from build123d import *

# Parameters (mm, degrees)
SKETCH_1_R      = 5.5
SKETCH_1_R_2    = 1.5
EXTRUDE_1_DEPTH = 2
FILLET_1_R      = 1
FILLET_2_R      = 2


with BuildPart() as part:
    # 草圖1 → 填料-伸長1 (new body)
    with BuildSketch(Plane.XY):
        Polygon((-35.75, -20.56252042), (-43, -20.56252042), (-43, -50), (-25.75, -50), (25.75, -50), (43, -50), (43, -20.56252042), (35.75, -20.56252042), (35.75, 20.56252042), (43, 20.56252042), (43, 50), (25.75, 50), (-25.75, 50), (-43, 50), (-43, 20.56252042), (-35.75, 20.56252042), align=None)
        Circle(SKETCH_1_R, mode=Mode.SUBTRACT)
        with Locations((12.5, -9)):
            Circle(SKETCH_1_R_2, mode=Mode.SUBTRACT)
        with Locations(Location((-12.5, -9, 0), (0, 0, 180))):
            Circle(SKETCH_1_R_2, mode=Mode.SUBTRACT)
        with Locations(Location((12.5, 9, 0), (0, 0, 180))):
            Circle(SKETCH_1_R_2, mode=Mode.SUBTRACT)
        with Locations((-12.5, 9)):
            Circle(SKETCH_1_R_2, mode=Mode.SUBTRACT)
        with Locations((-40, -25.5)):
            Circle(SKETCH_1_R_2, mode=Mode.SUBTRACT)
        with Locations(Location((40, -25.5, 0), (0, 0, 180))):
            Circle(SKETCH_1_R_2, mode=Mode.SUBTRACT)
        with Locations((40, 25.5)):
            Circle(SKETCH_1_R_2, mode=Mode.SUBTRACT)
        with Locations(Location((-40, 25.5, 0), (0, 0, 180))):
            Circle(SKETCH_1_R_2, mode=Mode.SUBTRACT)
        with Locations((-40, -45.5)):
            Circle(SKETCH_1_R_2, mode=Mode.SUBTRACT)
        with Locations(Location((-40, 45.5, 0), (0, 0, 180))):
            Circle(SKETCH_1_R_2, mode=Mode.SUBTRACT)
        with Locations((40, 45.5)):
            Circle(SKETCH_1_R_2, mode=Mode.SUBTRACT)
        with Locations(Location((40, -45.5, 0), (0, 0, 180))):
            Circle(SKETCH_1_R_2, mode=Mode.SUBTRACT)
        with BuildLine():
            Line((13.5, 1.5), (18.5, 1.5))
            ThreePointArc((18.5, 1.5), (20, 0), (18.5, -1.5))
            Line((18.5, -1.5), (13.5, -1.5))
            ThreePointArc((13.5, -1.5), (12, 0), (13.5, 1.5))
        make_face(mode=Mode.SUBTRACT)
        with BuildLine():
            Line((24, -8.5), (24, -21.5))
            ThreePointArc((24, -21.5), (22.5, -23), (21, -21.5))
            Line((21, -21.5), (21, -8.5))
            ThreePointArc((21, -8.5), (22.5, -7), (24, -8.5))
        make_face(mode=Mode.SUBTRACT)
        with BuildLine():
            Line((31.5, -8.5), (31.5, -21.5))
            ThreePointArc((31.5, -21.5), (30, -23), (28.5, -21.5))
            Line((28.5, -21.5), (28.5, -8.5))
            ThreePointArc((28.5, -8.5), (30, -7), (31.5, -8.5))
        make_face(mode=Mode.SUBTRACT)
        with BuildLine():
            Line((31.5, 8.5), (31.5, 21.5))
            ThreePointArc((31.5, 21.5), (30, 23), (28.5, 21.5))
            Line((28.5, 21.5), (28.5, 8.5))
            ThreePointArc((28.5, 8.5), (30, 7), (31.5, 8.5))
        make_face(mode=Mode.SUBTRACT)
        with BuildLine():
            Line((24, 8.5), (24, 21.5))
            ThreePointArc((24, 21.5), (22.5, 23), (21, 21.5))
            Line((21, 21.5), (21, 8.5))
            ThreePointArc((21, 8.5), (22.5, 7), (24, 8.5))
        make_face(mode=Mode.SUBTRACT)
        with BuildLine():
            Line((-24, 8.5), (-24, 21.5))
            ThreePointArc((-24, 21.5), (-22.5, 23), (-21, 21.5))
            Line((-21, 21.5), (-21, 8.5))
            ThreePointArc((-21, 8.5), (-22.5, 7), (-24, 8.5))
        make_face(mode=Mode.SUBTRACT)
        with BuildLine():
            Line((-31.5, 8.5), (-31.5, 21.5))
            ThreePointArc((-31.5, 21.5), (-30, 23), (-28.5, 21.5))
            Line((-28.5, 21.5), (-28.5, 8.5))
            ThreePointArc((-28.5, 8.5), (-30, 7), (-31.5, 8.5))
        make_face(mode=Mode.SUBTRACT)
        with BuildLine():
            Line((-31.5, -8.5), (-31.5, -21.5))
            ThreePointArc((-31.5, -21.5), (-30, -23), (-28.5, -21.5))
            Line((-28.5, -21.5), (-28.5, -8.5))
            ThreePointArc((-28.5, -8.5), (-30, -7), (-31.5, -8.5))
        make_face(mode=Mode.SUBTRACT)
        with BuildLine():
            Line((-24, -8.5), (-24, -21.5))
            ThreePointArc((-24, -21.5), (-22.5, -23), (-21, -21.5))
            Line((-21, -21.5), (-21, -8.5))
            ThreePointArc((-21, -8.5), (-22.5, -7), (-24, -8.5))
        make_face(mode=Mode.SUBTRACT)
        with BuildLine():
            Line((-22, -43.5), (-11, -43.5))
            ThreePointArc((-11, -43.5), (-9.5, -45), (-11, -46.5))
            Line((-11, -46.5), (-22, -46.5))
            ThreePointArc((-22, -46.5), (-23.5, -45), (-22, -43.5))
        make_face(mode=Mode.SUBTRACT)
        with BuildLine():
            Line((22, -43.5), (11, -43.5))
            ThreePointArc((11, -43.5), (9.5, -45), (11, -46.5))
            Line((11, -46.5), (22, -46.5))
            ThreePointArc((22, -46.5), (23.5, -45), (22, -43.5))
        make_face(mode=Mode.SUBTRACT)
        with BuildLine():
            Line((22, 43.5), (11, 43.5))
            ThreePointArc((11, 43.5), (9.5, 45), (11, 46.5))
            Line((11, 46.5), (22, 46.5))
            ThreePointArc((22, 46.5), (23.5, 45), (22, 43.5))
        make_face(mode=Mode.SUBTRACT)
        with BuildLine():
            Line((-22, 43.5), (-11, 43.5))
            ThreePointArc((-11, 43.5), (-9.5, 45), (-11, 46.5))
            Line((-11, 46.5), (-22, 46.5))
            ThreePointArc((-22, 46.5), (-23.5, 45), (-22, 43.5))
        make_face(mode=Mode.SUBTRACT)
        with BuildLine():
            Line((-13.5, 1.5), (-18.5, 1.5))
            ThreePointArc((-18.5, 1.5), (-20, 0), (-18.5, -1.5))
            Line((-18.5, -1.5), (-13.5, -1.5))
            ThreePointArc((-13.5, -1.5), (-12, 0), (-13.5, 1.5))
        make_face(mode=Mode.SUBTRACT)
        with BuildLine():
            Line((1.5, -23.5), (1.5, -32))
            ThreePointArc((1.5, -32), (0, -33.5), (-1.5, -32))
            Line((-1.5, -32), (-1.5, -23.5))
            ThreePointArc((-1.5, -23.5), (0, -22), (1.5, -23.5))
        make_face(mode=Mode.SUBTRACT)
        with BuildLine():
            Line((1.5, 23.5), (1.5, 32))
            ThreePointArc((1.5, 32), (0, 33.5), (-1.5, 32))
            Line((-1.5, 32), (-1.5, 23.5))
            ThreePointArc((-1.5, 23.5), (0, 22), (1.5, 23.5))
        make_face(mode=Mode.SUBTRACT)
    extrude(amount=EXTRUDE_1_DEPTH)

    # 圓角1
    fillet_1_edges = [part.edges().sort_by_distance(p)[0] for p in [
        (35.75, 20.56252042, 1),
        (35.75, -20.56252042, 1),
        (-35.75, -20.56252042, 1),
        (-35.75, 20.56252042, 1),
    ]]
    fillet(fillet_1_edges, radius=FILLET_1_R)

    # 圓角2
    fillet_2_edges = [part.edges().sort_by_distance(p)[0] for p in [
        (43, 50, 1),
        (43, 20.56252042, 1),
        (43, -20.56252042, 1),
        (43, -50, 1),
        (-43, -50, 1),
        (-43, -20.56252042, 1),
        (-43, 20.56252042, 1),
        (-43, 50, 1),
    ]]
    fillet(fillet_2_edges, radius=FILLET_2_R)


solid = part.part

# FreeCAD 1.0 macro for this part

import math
import FreeCAD as App
import Part
import Sketcher


def edges_at(feature, points):
    """Names of the edges that pass closest to the given points."""
    edges = feature.Shape.Edges
    near = lambda p: min(range(len(edges)), key=lambda i: edges[i].distToShape(Part.Vertex(*p))[0])
    return sorted({f"Edge{near(p) + 1}" for p in points})


def add_polygon(sketch, points):
    """Adds a closed chain of lines whose ends are joined by coincident constraints."""
    first, n = sketch.GeometryCount, len(points)
    for a, b in zip(points, points[1:] + points[:1]):
        sketch.addGeometry(Part.LineSegment(App.Vector(*a, 0), App.Vector(*b, 0)), False)
    for i in range(n):
        sketch.addConstraint(Sketcher.Constraint("Coincident", first + i, 2, first + (i + 1) % n, 1))

doc = App.newDocument("Part")
body = doc.addObject("PartDesign::Body", "Body")

sketch1 = body.newObject("Sketcher::SketchObject", "Sketch")
sketch1.AttachmentSupport = (doc.getObject("XY_Plane"), [""])
sketch1.MapMode = "FlatFace"
add_polygon(sketch1, [(-35.8, -20.6), (-43, -20.6), (-43, -50), (43, -50), (43, -20.6), (35.8, -20.6), (35.8, 20.6), (43, 20.6), (43, 50), (-43, 50), (-43, 20.6), (-35.8, 20.6)])
sketch1.addGeometry(Part.Circle(App.Vector(-40, -45.5, 0), App.Vector(0, 0, 1), 1.5), False)
sketch1.addGeometry(Part.Circle(App.Vector(-40, -25.5, 0), App.Vector(0, 0, 1), 1.5), False)
sketch1.addGeometry(Part.ArcOfCircle(Part.Circle(App.Vector(-22, -45, 0), App.Vector(0, 0, 1), 1.5), math.radians(90), math.radians(270)), False)
sketch1.addGeometry(Part.LineSegment(App.Vector(-22, -43.5, 0), App.Vector(-11, -43.5, 0)), False)
sketch1.addGeometry(Part.ArcOfCircle(Part.Circle(App.Vector(-11, -45, 0), App.Vector(0, 0, 1), 1.5), math.radians(-90), math.radians(90)), False)
sketch1.addGeometry(Part.LineSegment(App.Vector(-11, -46.5, 0), App.Vector(-22, -46.5, 0)), False)
sketch1.addGeometry(Part.LineSegment(App.Vector(-31.5, -21.5, 0), App.Vector(-31.5, -8.5, 0)), False)
sketch1.addGeometry(Part.ArcOfCircle(Part.Circle(App.Vector(-30, -8.5, 0), App.Vector(0, 0, 1), 1.5), math.radians(0), math.radians(180)), False)
sketch1.addGeometry(Part.LineSegment(App.Vector(-28.5, -8.5, 0), App.Vector(-28.5, -21.5, 0)), False)
sketch1.addGeometry(Part.ArcOfCircle(Part.Circle(App.Vector(-30, -21.5, 0), App.Vector(0, 0, 1), 1.5), math.radians(180), math.radians(360)), False)
sketch1.addGeometry(Part.LineSegment(App.Vector(-24, -21.5, 0), App.Vector(-24, -8.5, 0)), False)
sketch1.addGeometry(Part.ArcOfCircle(Part.Circle(App.Vector(-22.5, -8.5, 0), App.Vector(0, 0, 1), 1.5), math.radians(0), math.radians(180)), False)
sketch1.addGeometry(Part.LineSegment(App.Vector(-21, -8.5, 0), App.Vector(-21, -21.5, 0)), False)
sketch1.addGeometry(Part.ArcOfCircle(Part.Circle(App.Vector(-22.5, -21.5, 0), App.Vector(0, 0, 1), 1.5), math.radians(180), math.radians(360)), False)
sketch1.addGeometry(Part.Circle(App.Vector(-12.5, -9, 0), App.Vector(0, 0, 1), 1.5), False)
sketch1.addGeometry(Part.LineSegment(App.Vector(11, -43.5, 0), App.Vector(22, -43.5, 0)), False)
sketch1.addGeometry(Part.ArcOfCircle(Part.Circle(App.Vector(22, -45, 0), App.Vector(0, 0, 1), 1.5), math.radians(-90), math.radians(90)), False)
sketch1.addGeometry(Part.LineSegment(App.Vector(22, -46.5, 0), App.Vector(11, -46.5, 0)), False)
sketch1.addGeometry(Part.ArcOfCircle(Part.Circle(App.Vector(11, -45, 0), App.Vector(0, 0, 1), 1.5), math.radians(90), math.radians(270)), False)
sketch1.addGeometry(Part.ArcOfCircle(Part.Circle(App.Vector(0, -23.5, 0), App.Vector(0, 0, 1), 1.5), math.radians(0), math.radians(180)), False)
sketch1.addGeometry(Part.LineSegment(App.Vector(1.5, -23.5, 0), App.Vector(1.5, -32, 0)), False)
sketch1.addGeometry(Part.ArcOfCircle(Part.Circle(App.Vector(0, -32, 0), App.Vector(0, 0, 1), 1.5), math.radians(180), math.radians(360)), False)
sketch1.addGeometry(Part.LineSegment(App.Vector(-1.5, -32, 0), App.Vector(-1.5, -23.5, 0)), False)
sketch1.addGeometry(Part.Circle(App.Vector(40, -45.5, 0), App.Vector(0, 0, 1), 1.5), False)
sketch1.addGeometry(Part.Circle(App.Vector(40, -25.5, 0), App.Vector(0, 0, 1), 1.5), False)
sketch1.addGeometry(Part.Circle(App.Vector(12.5, -9, 0), App.Vector(0, 0, 1), 1.5), False)
sketch1.addGeometry(Part.ArcOfCircle(Part.Circle(App.Vector(22.5, -8.5, 0), App.Vector(0, 0, 1), 1.5), math.radians(0), math.radians(180)), False)
sketch1.addGeometry(Part.LineSegment(App.Vector(24, -8.5, 0), App.Vector(24, -21.5, 0)), False)
sketch1.addGeometry(Part.ArcOfCircle(Part.Circle(App.Vector(22.5, -21.5, 0), App.Vector(0, 0, 1), 1.5), math.radians(180), math.radians(360)), False)
sketch1.addGeometry(Part.LineSegment(App.Vector(21, -21.5, 0), App.Vector(21, -8.5, 0)), False)
sketch1.addGeometry(Part.ArcOfCircle(Part.Circle(App.Vector(30, -8.5, 0), App.Vector(0, 0, 1), 1.5), math.radians(0), math.radians(180)), False)
sketch1.addGeometry(Part.LineSegment(App.Vector(31.5, -8.5, 0), App.Vector(31.5, -21.5, 0)), False)
sketch1.addGeometry(Part.ArcOfCircle(Part.Circle(App.Vector(30, -21.5, 0), App.Vector(0, 0, 1), 1.5), math.radians(180), math.radians(360)), False)
sketch1.addGeometry(Part.LineSegment(App.Vector(28.5, -21.5, 0), App.Vector(28.5, -8.5, 0)), False)
sketch1.addGeometry(Part.ArcOfCircle(Part.Circle(App.Vector(-30, 8.5, 0), App.Vector(0, 0, 1), 1.5), math.radians(180), math.radians(360)), False)
sketch1.addGeometry(Part.LineSegment(App.Vector(-31.5, 8.5, 0), App.Vector(-31.5, 21.5, 0)), False)
sketch1.addGeometry(Part.ArcOfCircle(Part.Circle(App.Vector(-30, 21.5, 0), App.Vector(0, 0, 1), 1.5), math.radians(0), math.radians(180)), False)
sketch1.addGeometry(Part.LineSegment(App.Vector(-28.5, 21.5, 0), App.Vector(-28.5, 8.5, 0)), False)
sketch1.addGeometry(Part.ArcOfCircle(Part.Circle(App.Vector(-22.5, 8.5, 0), App.Vector(0, 0, 1), 1.5), math.radians(180), math.radians(360)), False)
sketch1.addGeometry(Part.LineSegment(App.Vector(-24, 8.5, 0), App.Vector(-24, 21.5, 0)), False)
sketch1.addGeometry(Part.ArcOfCircle(Part.Circle(App.Vector(-22.5, 21.5, 0), App.Vector(0, 0, 1), 1.5), math.radians(0), math.radians(180)), False)
sketch1.addGeometry(Part.LineSegment(App.Vector(-21, 21.5, 0), App.Vector(-21, 8.5, 0)), False)
sketch1.addGeometry(Part.LineSegment(App.Vector(-18.5, 1.5, 0), App.Vector(-13.5, 1.5, 0)), False)
sketch1.addGeometry(Part.ArcOfCircle(Part.Circle(App.Vector(-13.5, 0, 0), App.Vector(0, 0, 1), 1.5), math.radians(-90), math.radians(90)), False)
sketch1.addGeometry(Part.LineSegment(App.Vector(-13.5, -1.5, 0), App.Vector(-18.5, -1.5, 0)), False)
sketch1.addGeometry(Part.ArcOfCircle(Part.Circle(App.Vector(-18.5, 0, 0), App.Vector(0, 0, 1), 1.5), math.radians(90), math.radians(270)), False)
sketch1.addGeometry(Part.Circle(App.Vector(-12.5, 9, 0), App.Vector(0, 0, 1), 1.5), False)
sketch1.addGeometry(Part.Circle(App.Vector(-40, 25.5, 0), App.Vector(0, 0, 1), 1.5), False)
sketch1.addGeometry(Part.Circle(App.Vector(-40, 45.5, 0), App.Vector(0, 0, 1), 1.5), False)
sketch1.addGeometry(Part.LineSegment(App.Vector(-11, 43.5, 0), App.Vector(-22, 43.5, 0)), False)
sketch1.addGeometry(Part.ArcOfCircle(Part.Circle(App.Vector(-22, 45, 0), App.Vector(0, 0, 1), 1.5), math.radians(90), math.radians(270)), False)
sketch1.addGeometry(Part.LineSegment(App.Vector(-22, 46.5, 0), App.Vector(-11, 46.5, 0)), False)
sketch1.addGeometry(Part.ArcOfCircle(Part.Circle(App.Vector(-11, 45, 0), App.Vector(0, 0, 1), 1.5), math.radians(-90), math.radians(90)), False)
sketch1.addGeometry(Part.Circle(App.Vector(0, 0, 0), App.Vector(0, 0, 1), 5.5), False)
sketch1.addGeometry(Part.ArcOfCircle(Part.Circle(App.Vector(13.5, 0, 0), App.Vector(0, 0, 1), 1.5), math.radians(90), math.radians(270)), False)
sketch1.addGeometry(Part.LineSegment(App.Vector(13.5, 1.5, 0), App.Vector(18.5, 1.5, 0)), False)
sketch1.addGeometry(Part.ArcOfCircle(Part.Circle(App.Vector(18.5, 0, 0), App.Vector(0, 0, 1), 1.5), math.radians(-90), math.radians(90)), False)
sketch1.addGeometry(Part.LineSegment(App.Vector(18.5, -1.5, 0), App.Vector(13.5, -1.5, 0)), False)
sketch1.addGeometry(Part.Circle(App.Vector(12.5, 9, 0), App.Vector(0, 0, 1), 1.5), False)
sketch1.addGeometry(Part.LineSegment(App.Vector(24, 21.5, 0), App.Vector(24, 8.5, 0)), False)
sketch1.addGeometry(Part.ArcOfCircle(Part.Circle(App.Vector(22.5, 8.5, 0), App.Vector(0, 0, 1), 1.5), math.radians(180), math.radians(360)), False)
sketch1.addGeometry(Part.LineSegment(App.Vector(21, 8.5, 0), App.Vector(21, 21.5, 0)), False)
sketch1.addGeometry(Part.ArcOfCircle(Part.Circle(App.Vector(22.5, 21.5, 0), App.Vector(0, 0, 1), 1.5), math.radians(0), math.radians(180)), False)
sketch1.addGeometry(Part.LineSegment(App.Vector(31.5, 21.5, 0), App.Vector(31.5, 8.5, 0)), False)
sketch1.addGeometry(Part.ArcOfCircle(Part.Circle(App.Vector(30, 8.5, 0), App.Vector(0, 0, 1), 1.5), math.radians(180), math.radians(360)), False)
sketch1.addGeometry(Part.LineSegment(App.Vector(28.5, 8.5, 0), App.Vector(28.5, 21.5, 0)), False)
sketch1.addGeometry(Part.ArcOfCircle(Part.Circle(App.Vector(30, 21.5, 0), App.Vector(0, 0, 1), 1.5), math.radians(0), math.radians(180)), False)
sketch1.addGeometry(Part.LineSegment(App.Vector(1.5, 32, 0), App.Vector(1.5, 23.5, 0)), False)
sketch1.addGeometry(Part.ArcOfCircle(Part.Circle(App.Vector(0, 23.5, 0), App.Vector(0, 0, 1), 1.5), math.radians(180), math.radians(360)), False)
sketch1.addGeometry(Part.LineSegment(App.Vector(-1.5, 23.5, 0), App.Vector(-1.5, 32, 0)), False)
sketch1.addGeometry(Part.ArcOfCircle(Part.Circle(App.Vector(0, 32, 0), App.Vector(0, 0, 1), 1.5), math.radians(0), math.radians(180)), False)
sketch1.addGeometry(Part.ArcOfCircle(Part.Circle(App.Vector(22, 45, 0), App.Vector(0, 0, 1), 1.5), math.radians(-90), math.radians(90)), False)
sketch1.addGeometry(Part.LineSegment(App.Vector(22, 43.5, 0), App.Vector(11, 43.5, 0)), False)
sketch1.addGeometry(Part.ArcOfCircle(Part.Circle(App.Vector(11, 45, 0), App.Vector(0, 0, 1), 1.5), math.radians(90), math.radians(270)), False)
sketch1.addGeometry(Part.LineSegment(App.Vector(11, 46.5, 0), App.Vector(22, 46.5, 0)), False)
sketch1.addGeometry(Part.Circle(App.Vector(40, 25.5, 0), App.Vector(0, 0, 1), 1.5), False)
sketch1.addGeometry(Part.Circle(App.Vector(40, 45.5, 0), App.Vector(0, 0, 1), 1.5), False)
sketch1.addConstraint(Sketcher.Constraint("Tangent", 14, 1, 15, 1))
sketch1.addConstraint(Sketcher.Constraint("Tangent", 15, 2, 16, 2))
sketch1.addConstraint(Sketcher.Constraint("Tangent", 16, 1, 17, 1))
sketch1.addConstraint(Sketcher.Constraint("Tangent", 17, 2, 14, 2))
sketch1.addConstraint(Sketcher.Constraint("Tangent", 18, 2, 19, 2))
sketch1.addConstraint(Sketcher.Constraint("Tangent", 19, 1, 20, 1))
sketch1.addConstraint(Sketcher.Constraint("Tangent", 20, 2, 21, 2))
sketch1.addConstraint(Sketcher.Constraint("Tangent", 21, 1, 18, 1))
sketch1.addConstraint(Sketcher.Constraint("Tangent", 22, 2, 23, 2))
sketch1.addConstraint(Sketcher.Constraint("Tangent", 23, 1, 24, 1))
sketch1.addConstraint(Sketcher.Constraint("Tangent", 24, 2, 25, 2))
sketch1.addConstraint(Sketcher.Constraint("Tangent", 25, 1, 22, 1))
sketch1.addConstraint(Sketcher.Constraint("Tangent", 27, 2, 28, 2))
sketch1.addConstraint(Sketcher.Constraint("Tangent", 28, 1, 29, 1))
sketch1.addConstraint(Sketcher.Constraint("Tangent", 29, 2, 30, 2))
sketch1.addConstraint(Sketcher.Constraint("Tangent", 30, 1, 27, 1))
sketch1.addConstraint(Sketcher.Constraint("Tangent", 31, 1, 32, 1))
sketch1.addConstraint(Sketcher.Constraint("Tangent", 32, 2, 33, 2))
sketch1.addConstraint(Sketcher.Constraint("Tangent", 33, 1, 34, 1))
sketch1.addConstraint(Sketcher.Constraint("Tangent", 34, 2, 31, 2))
sketch1.addConstraint(Sketcher.Constraint("Tangent", 38, 1, 39, 1))
sketch1.addConstraint(Sketcher.Constraint("Tangent", 39, 2, 40, 2))
sketch1.addConstraint(Sketcher.Constraint("Tangent", 40, 1, 41, 1))
sketch1.addConstraint(Sketcher.Constraint("Tangent", 41, 2, 38, 2))
sketch1.addConstraint(Sketcher.Constraint("Tangent", 42, 1, 43, 1))
sketch1.addConstraint(Sketcher.Constraint("Tangent", 43, 2, 44, 2))
sketch1.addConstraint(Sketcher.Constraint("Tangent", 44, 1, 45, 1))
sketch1.addConstraint(Sketcher.Constraint("Tangent", 45, 2, 42, 2))
sketch1.addConstraint(Sketcher.Constraint("Tangent", 46, 1, 47, 1))
sketch1.addConstraint(Sketcher.Constraint("Tangent", 47, 2, 48, 2))
sketch1.addConstraint(Sketcher.Constraint("Tangent", 48, 1, 49, 1))
sketch1.addConstraint(Sketcher.Constraint("Tangent", 49, 2, 46, 2))
sketch1.addConstraint(Sketcher.Constraint("Tangent", 50, 1, 51, 1))
sketch1.addConstraint(Sketcher.Constraint("Tangent", 51, 2, 52, 2))
sketch1.addConstraint(Sketcher.Constraint("Tangent", 52, 1, 53, 1))
sketch1.addConstraint(Sketcher.Constraint("Tangent", 53, 2, 50, 2))
sketch1.addConstraint(Sketcher.Constraint("Tangent", 54, 2, 55, 2))
sketch1.addConstraint(Sketcher.Constraint("Tangent", 55, 1, 56, 1))
sketch1.addConstraint(Sketcher.Constraint("Tangent", 56, 2, 57, 2))
sketch1.addConstraint(Sketcher.Constraint("Tangent", 57, 1, 54, 1))
sketch1.addConstraint(Sketcher.Constraint("Tangent", 61, 2, 62, 2))
sketch1.addConstraint(Sketcher.Constraint("Tangent", 62, 1, 63, 1))
sketch1.addConstraint(Sketcher.Constraint("Tangent", 63, 2, 64, 2))
sketch1.addConstraint(Sketcher.Constraint("Tangent", 64, 1, 61, 1))
sketch1.addConstraint(Sketcher.Constraint("Tangent", 66, 1, 67, 1))
sketch1.addConstraint(Sketcher.Constraint("Tangent", 67, 2, 68, 2))
sketch1.addConstraint(Sketcher.Constraint("Tangent", 68, 1, 69, 1))
sketch1.addConstraint(Sketcher.Constraint("Tangent", 69, 2, 66, 2))
sketch1.addConstraint(Sketcher.Constraint("Tangent", 71, 2, 72, 2))
sketch1.addConstraint(Sketcher.Constraint("Tangent", 72, 1, 73, 1))
sketch1.addConstraint(Sketcher.Constraint("Tangent", 73, 2, 74, 2))
sketch1.addConstraint(Sketcher.Constraint("Tangent", 74, 1, 71, 1))
sketch1.addConstraint(Sketcher.Constraint("Tangent", 75, 2, 76, 2))
sketch1.addConstraint(Sketcher.Constraint("Tangent", 76, 1, 77, 1))
sketch1.addConstraint(Sketcher.Constraint("Tangent", 77, 2, 78, 2))
sketch1.addConstraint(Sketcher.Constraint("Tangent", 78, 1, 75, 1))
sketch1.addConstraint(Sketcher.Constraint("Tangent", 79, 2, 80, 2))
sketch1.addConstraint(Sketcher.Constraint("Tangent", 80, 1, 81, 1))
sketch1.addConstraint(Sketcher.Constraint("Tangent", 81, 2, 82, 2))
sketch1.addConstraint(Sketcher.Constraint("Tangent", 82, 1, 79, 1))
sketch1.addConstraint(Sketcher.Constraint("Tangent", 83, 1, 84, 1))
sketch1.addConstraint(Sketcher.Constraint("Tangent", 84, 2, 85, 2))
sketch1.addConstraint(Sketcher.Constraint("Tangent", 85, 1, 86, 1))
sketch1.addConstraint(Sketcher.Constraint("Tangent", 86, 2, 83, 2))
sketch1.addConstraint(Sketcher.Constraint("Horizontal", 0))
sketch1.addConstraint(Sketcher.Constraint("Vertical", 1))
sketch1.addConstraint(Sketcher.Constraint("Horizontal", 2))
sketch1.addConstraint(Sketcher.Constraint("Vertical", 3))
sketch1.addConstraint(Sketcher.Constraint("Horizontal", 4))
sketch1.addConstraint(Sketcher.Constraint("Vertical", 5))
sketch1.addConstraint(Sketcher.Constraint("Horizontal", 6))
sketch1.addConstraint(Sketcher.Constraint("Vertical", 7))
sketch1.addConstraint(Sketcher.Constraint("Horizontal", 8))
sketch1.addConstraint(Sketcher.Constraint("Vertical", 9))
sketch1.addConstraint(Sketcher.Constraint("Horizontal", 10))
sketch1.addConstraint(Sketcher.Constraint("Vertical", 11))
sketch1.addConstraint(Sketcher.Constraint("Horizontal", 15))
sketch1.addConstraint(Sketcher.Constraint("Horizontal", 17))
sketch1.addConstraint(Sketcher.Constraint("Vertical", 18))
sketch1.addConstraint(Sketcher.Constraint("Vertical", 20))
sketch1.addConstraint(Sketcher.Constraint("Vertical", 22))
sketch1.addConstraint(Sketcher.Constraint("Vertical", 24))
sketch1.addConstraint(Sketcher.Constraint("Horizontal", 27))
sketch1.addConstraint(Sketcher.Constraint("Horizontal", 29))
sketch1.addConstraint(Sketcher.Constraint("Vertical", 32))
sketch1.addConstraint(Sketcher.Constraint("Vertical", 34))
sketch1.addConstraint(Sketcher.Constraint("Vertical", 39))
sketch1.addConstraint(Sketcher.Constraint("Vertical", 41))
sketch1.addConstraint(Sketcher.Constraint("Vertical", 43))
sketch1.addConstraint(Sketcher.Constraint("Vertical", 45))
sketch1.addConstraint(Sketcher.Constraint("Vertical", 47))
sketch1.addConstraint(Sketcher.Constraint("Vertical", 49))
sketch1.addConstraint(Sketcher.Constraint("Vertical", 51))
sketch1.addConstraint(Sketcher.Constraint("Vertical", 53))
sketch1.addConstraint(Sketcher.Constraint("Horizontal", 54))
sketch1.addConstraint(Sketcher.Constraint("Horizontal", 56))
sketch1.addConstraint(Sketcher.Constraint("Horizontal", 61))
sketch1.addConstraint(Sketcher.Constraint("Horizontal", 63))
sketch1.addConstraint(Sketcher.Constraint("Horizontal", 67))
sketch1.addConstraint(Sketcher.Constraint("Horizontal", 69))
sketch1.addConstraint(Sketcher.Constraint("Vertical", 71))
sketch1.addConstraint(Sketcher.Constraint("Vertical", 73))
sketch1.addConstraint(Sketcher.Constraint("Vertical", 75))
sketch1.addConstraint(Sketcher.Constraint("Vertical", 77))
sketch1.addConstraint(Sketcher.Constraint("Vertical", 79))
sketch1.addConstraint(Sketcher.Constraint("Vertical", 81))
sketch1.addConstraint(Sketcher.Constraint("Horizontal", 84))
sketch1.addConstraint(Sketcher.Constraint("Horizontal", 86))
sketch1.addConstraint(Sketcher.Constraint("Coincident", 65, 3, -1, 1))
sketch1.addConstraint(Sketcher.Constraint("Equal", 12, 13))
sketch1.addConstraint(Sketcher.Constraint("Equal", 13, 14))
sketch1.addConstraint(Sketcher.Constraint("Equal", 16, 19))
sketch1.addConstraint(Sketcher.Constraint("Equal", 21, 23))
sketch1.addConstraint(Sketcher.Constraint("Equal", 25, 26))
sketch1.addConstraint(Sketcher.Constraint("Equal", 26, 28))
sketch1.addConstraint(Sketcher.Constraint("Equal", 30, 31))
sketch1.addConstraint(Sketcher.Constraint("Equal", 33, 35))
sketch1.addConstraint(Sketcher.Constraint("Equal", 35, 36))
sketch1.addConstraint(Sketcher.Constraint("Equal", 36, 37))
sketch1.addConstraint(Sketcher.Constraint("Equal", 37, 38))
sketch1.addConstraint(Sketcher.Constraint("Equal", 40, 42))
sketch1.addConstraint(Sketcher.Constraint("Equal", 44, 46))
sketch1.addConstraint(Sketcher.Constraint("Equal", 48, 50))
sketch1.addConstraint(Sketcher.Constraint("Equal", 52, 55))
sketch1.addConstraint(Sketcher.Constraint("Equal", 57, 58))
sketch1.addConstraint(Sketcher.Constraint("Equal", 58, 59))
sketch1.addConstraint(Sketcher.Constraint("Equal", 59, 60))
sketch1.addConstraint(Sketcher.Constraint("Equal", 60, 62))
sketch1.addConstraint(Sketcher.Constraint("Equal", 64, 66))
sketch1.addConstraint(Sketcher.Constraint("Equal", 68, 70))
sketch1.addConstraint(Sketcher.Constraint("Equal", 70, 72))
sketch1.addConstraint(Sketcher.Constraint("Equal", 74, 76))
sketch1.addConstraint(Sketcher.Constraint("Equal", 78, 80))
sketch1.addConstraint(Sketcher.Constraint("Equal", 82, 83))
sketch1.addConstraint(Sketcher.Constraint("Equal", 85, 87))
sketch1.addConstraint(Sketcher.Constraint("Equal", 87, 88))
sketch1.addConstraint(Sketcher.Constraint("Symmetric", 42, 3, 46, 3, -1, 1))
sketch1.addConstraint(Sketcher.Constraint("Symmetric", 38, 3, 50, 3, -1, 1))
sketch1.addConstraint(Sketcher.Constraint("Symmetric", 37, 3, 58, 3, -1, 1))
sketch1.addConstraint(Sketcher.Constraint("Symmetric", 36, 3, 59, 3, -1, 1))
sketch1.addConstraint(Sketcher.Constraint("Symmetric", 35, 3, 60, 3, -1, 1))
sketch1.addConstraint(Sketcher.Constraint("Symmetric", 28, 3, 62, 3, -1, 1))
sketch1.addConstraint(Sketcher.Constraint("Symmetric", 55, 3, 66, 3, -1, 1))
sketch1.addConstraint(Sketcher.Constraint("Symmetric", 26, 3, 70, 3, -1, 1))
sketch1.addConstraint(Sketcher.Constraint("Symmetric", 23, 3, 72, 3, -1, 1))
sketch1.addConstraint(Sketcher.Constraint("Symmetric", 19, 3, 76, 3, -1, 1))
sketch1.addConstraint(Sketcher.Constraint("Symmetric", 31, 3, 80, 3, -1, 1))
sketch1.addConstraint(Sketcher.Constraint("Symmetric", 14, 3, 83, 3, -1, 1))
sketch1.addConstraint(Sketcher.Constraint("Symmetric", 13, 3, 87, 3, -1, 1))
sketch1.addConstraint(Sketcher.Constraint("Symmetric", 12, 3, 88, 3, -1, 1))
sketch1.addConstraint(Sketcher.Constraint("Symmetric", 0, 2, 6, 2, -1, 1))
sketch1.addConstraint(Sketcher.Constraint("Symmetric", 2, 2, 8, 2, -1, 1))
sketch1.addConstraint(Sketcher.Constraint("Symmetric", 4, 2, 10, 2, -1, 1))
sketch1.addConstraint(Sketcher.Constraint("Symmetric", 14, 3, 28, 3, -2))
sketch1.addConstraint(Sketcher.Constraint("Symmetric", 12, 3, 35, 3, -2))
sketch1.addConstraint(Sketcher.Constraint("Symmetric", 13, 3, 36, 3, -2))
sketch1.addConstraint(Sketcher.Constraint("Symmetric", 26, 3, 37, 3, -2))
sketch1.addConstraint(Sketcher.Constraint("Symmetric", 23, 3, 38, 3, -2))
sketch1.addConstraint(Sketcher.Constraint("Symmetric", 19, 3, 42, 3, -2))
sketch1.addConstraint(Sketcher.Constraint("Symmetric", 57, 3, 68, 3, -2))
sketch1.addConstraint(Sketcher.Constraint("Symmetric", 0, 2, 3, 2, -2))
sketch1.addConstraint(Sketcher.Constraint("Symmetric", 33, 3, 82, 3, -1))
sketch1.addConstraint(Sketcher.Constraint("Horizontal", 19, 3, 23, 3))
sketch1.addConstraint(Sketcher.Constraint("Horizontal", 21, 3, 25, 3))
sketch1.addConstraint(Sketcher.Constraint("Horizontal", 25, 3, 40, 3))
sketch1.addConstraint(Sketcher.Constraint("Horizontal", 40, 3, 44, 3))
sketch1.addConstraint(Sketcher.Constraint("Horizontal", 48, 3, 52, 3))
sketch1.addConstraint(Sketcher.Constraint("Horizontal", 52, 3, 74, 3))
sketch1.addConstraint(Sketcher.Constraint("Horizontal", 74, 3, 78, 3))
sketch1.addConstraint(Sketcher.Constraint("Vertical", 12, 3, 13, 3))
sketch1.addConstraint(Sketcher.Constraint("Vertical", 16, 3, 64, 3))
sketch1.addConstraint(Sketcher.Constraint("Vertical", 30, 3, 85, 3))
sketch1.addConstraint(Sketcher.Constraint("Equal", 17, 27))
sketch1.addConstraint(Sketcher.Constraint("Equal", 45, 47))
sketch1.addConstraint(Sketcher.Constraint("Diameter", 12, 3.0))
sketch1.addConstraint(Sketcher.Constraint("Diameter", 65, 11.0))
sketch1.addConstraint(Sketcher.Constraint("DistanceX", 2, 1, 2, 2, 86.0))
sketch1.addConstraint(Sketcher.Constraint("DistanceX", 15, 1, 15, 2, 11.0))
sketch1.addConstraint(Sketcher.Constraint("DistanceX", 54, 1, 54, 2, 5.0))
sketch1.addConstraint(Sketcher.Constraint("DistanceY", 18, 1, 18, 2, 13.0))
sketch1.addConstraint(Sketcher.Constraint("DistanceY", 32, 2, 32, 1, 8.5))
sketch1.addConstraint(Sketcher.Constraint("DistanceX", 12, 3, -1, 1, 40.0))
sketch1.addConstraint(Sketcher.Constraint("DistanceX", 14, 3, -1, 1, 22.0))
sketch1.addConstraint(Sketcher.Constraint("DistanceY", 14, 3, -1, 1, 45.0))
sketch1.addConstraint(Sketcher.Constraint("DistanceX", 19, 3, -1, 1, 30.0))
sketch1.addConstraint(Sketcher.Constraint("DistanceY", 26, 3, -1, 1, 9.0))
sketch1.addConstraint(Sketcher.Constraint("DistanceY", 33, 3, -1, 1, 32.0))
sketch1.addConstraint(Sketcher.Constraint("DistanceY", 1, 2, -1, 1, 50.0))
sketch1.addConstraint(Sketcher.Constraint("DistanceX", 22, 2, -1, 1, 24.0))
sketch1.addConstraint(Sketcher.Constraint("DistanceX", 0, 2, 0, 1, 7.25))
sketch1.addConstraint(Sketcher.Constraint("DistanceY", 12, 3, -1, 1, 45.5))
sketch1.addConstraint(Sketcher.Constraint("DistanceY", 13, 3, -1, 1, 25.5))
sketch1.addConstraint(Sketcher.Constraint("DistanceY", 19, 3, -1, 1, 8.5))
sketch1.addConstraint(Sketcher.Constraint("DistanceX", 26, 3, -1, 1, 12.5))
sketch1.addConstraint(Sketcher.Constraint("DistanceX", 55, 3, -1, 1, 13.5))
sketch1.addConstraint(Sketcher.Constraint("DistanceY", 1, 2, 1, 1, 29.43748))
pad1 = body.newObject("PartDesign::Pad", "Pad")
pad1.Profile = sketch1
pad1.Length = 2
doc.recompute()

fillet = body.newObject("PartDesign::Fillet", "Fillet")
fillet.Base = (pad1, edges_at(pad1, [
    (35.75, 20.563, 1),
    (35.75, -20.563, 1),
    (-35.75, -20.563, 1),
    (-35.75, 20.563, 1),
]))
fillet.Radius = 1
doc.recompute()

fillet2 = body.newObject("PartDesign::Fillet", "Fillet001")
fillet2.Base = (fillet, edges_at(fillet, [
    (43, 50, 1),
    (43, 20.563, 1),
    (43, -20.563, 1),
    (43, -50, 1),
    (-43, -50, 1),
    (-43, -20.563, 1),
    (-43, 20.563, 1),
    (-43, 50, 1),
]))
fillet2.Radius = 2

doc.recompute()
